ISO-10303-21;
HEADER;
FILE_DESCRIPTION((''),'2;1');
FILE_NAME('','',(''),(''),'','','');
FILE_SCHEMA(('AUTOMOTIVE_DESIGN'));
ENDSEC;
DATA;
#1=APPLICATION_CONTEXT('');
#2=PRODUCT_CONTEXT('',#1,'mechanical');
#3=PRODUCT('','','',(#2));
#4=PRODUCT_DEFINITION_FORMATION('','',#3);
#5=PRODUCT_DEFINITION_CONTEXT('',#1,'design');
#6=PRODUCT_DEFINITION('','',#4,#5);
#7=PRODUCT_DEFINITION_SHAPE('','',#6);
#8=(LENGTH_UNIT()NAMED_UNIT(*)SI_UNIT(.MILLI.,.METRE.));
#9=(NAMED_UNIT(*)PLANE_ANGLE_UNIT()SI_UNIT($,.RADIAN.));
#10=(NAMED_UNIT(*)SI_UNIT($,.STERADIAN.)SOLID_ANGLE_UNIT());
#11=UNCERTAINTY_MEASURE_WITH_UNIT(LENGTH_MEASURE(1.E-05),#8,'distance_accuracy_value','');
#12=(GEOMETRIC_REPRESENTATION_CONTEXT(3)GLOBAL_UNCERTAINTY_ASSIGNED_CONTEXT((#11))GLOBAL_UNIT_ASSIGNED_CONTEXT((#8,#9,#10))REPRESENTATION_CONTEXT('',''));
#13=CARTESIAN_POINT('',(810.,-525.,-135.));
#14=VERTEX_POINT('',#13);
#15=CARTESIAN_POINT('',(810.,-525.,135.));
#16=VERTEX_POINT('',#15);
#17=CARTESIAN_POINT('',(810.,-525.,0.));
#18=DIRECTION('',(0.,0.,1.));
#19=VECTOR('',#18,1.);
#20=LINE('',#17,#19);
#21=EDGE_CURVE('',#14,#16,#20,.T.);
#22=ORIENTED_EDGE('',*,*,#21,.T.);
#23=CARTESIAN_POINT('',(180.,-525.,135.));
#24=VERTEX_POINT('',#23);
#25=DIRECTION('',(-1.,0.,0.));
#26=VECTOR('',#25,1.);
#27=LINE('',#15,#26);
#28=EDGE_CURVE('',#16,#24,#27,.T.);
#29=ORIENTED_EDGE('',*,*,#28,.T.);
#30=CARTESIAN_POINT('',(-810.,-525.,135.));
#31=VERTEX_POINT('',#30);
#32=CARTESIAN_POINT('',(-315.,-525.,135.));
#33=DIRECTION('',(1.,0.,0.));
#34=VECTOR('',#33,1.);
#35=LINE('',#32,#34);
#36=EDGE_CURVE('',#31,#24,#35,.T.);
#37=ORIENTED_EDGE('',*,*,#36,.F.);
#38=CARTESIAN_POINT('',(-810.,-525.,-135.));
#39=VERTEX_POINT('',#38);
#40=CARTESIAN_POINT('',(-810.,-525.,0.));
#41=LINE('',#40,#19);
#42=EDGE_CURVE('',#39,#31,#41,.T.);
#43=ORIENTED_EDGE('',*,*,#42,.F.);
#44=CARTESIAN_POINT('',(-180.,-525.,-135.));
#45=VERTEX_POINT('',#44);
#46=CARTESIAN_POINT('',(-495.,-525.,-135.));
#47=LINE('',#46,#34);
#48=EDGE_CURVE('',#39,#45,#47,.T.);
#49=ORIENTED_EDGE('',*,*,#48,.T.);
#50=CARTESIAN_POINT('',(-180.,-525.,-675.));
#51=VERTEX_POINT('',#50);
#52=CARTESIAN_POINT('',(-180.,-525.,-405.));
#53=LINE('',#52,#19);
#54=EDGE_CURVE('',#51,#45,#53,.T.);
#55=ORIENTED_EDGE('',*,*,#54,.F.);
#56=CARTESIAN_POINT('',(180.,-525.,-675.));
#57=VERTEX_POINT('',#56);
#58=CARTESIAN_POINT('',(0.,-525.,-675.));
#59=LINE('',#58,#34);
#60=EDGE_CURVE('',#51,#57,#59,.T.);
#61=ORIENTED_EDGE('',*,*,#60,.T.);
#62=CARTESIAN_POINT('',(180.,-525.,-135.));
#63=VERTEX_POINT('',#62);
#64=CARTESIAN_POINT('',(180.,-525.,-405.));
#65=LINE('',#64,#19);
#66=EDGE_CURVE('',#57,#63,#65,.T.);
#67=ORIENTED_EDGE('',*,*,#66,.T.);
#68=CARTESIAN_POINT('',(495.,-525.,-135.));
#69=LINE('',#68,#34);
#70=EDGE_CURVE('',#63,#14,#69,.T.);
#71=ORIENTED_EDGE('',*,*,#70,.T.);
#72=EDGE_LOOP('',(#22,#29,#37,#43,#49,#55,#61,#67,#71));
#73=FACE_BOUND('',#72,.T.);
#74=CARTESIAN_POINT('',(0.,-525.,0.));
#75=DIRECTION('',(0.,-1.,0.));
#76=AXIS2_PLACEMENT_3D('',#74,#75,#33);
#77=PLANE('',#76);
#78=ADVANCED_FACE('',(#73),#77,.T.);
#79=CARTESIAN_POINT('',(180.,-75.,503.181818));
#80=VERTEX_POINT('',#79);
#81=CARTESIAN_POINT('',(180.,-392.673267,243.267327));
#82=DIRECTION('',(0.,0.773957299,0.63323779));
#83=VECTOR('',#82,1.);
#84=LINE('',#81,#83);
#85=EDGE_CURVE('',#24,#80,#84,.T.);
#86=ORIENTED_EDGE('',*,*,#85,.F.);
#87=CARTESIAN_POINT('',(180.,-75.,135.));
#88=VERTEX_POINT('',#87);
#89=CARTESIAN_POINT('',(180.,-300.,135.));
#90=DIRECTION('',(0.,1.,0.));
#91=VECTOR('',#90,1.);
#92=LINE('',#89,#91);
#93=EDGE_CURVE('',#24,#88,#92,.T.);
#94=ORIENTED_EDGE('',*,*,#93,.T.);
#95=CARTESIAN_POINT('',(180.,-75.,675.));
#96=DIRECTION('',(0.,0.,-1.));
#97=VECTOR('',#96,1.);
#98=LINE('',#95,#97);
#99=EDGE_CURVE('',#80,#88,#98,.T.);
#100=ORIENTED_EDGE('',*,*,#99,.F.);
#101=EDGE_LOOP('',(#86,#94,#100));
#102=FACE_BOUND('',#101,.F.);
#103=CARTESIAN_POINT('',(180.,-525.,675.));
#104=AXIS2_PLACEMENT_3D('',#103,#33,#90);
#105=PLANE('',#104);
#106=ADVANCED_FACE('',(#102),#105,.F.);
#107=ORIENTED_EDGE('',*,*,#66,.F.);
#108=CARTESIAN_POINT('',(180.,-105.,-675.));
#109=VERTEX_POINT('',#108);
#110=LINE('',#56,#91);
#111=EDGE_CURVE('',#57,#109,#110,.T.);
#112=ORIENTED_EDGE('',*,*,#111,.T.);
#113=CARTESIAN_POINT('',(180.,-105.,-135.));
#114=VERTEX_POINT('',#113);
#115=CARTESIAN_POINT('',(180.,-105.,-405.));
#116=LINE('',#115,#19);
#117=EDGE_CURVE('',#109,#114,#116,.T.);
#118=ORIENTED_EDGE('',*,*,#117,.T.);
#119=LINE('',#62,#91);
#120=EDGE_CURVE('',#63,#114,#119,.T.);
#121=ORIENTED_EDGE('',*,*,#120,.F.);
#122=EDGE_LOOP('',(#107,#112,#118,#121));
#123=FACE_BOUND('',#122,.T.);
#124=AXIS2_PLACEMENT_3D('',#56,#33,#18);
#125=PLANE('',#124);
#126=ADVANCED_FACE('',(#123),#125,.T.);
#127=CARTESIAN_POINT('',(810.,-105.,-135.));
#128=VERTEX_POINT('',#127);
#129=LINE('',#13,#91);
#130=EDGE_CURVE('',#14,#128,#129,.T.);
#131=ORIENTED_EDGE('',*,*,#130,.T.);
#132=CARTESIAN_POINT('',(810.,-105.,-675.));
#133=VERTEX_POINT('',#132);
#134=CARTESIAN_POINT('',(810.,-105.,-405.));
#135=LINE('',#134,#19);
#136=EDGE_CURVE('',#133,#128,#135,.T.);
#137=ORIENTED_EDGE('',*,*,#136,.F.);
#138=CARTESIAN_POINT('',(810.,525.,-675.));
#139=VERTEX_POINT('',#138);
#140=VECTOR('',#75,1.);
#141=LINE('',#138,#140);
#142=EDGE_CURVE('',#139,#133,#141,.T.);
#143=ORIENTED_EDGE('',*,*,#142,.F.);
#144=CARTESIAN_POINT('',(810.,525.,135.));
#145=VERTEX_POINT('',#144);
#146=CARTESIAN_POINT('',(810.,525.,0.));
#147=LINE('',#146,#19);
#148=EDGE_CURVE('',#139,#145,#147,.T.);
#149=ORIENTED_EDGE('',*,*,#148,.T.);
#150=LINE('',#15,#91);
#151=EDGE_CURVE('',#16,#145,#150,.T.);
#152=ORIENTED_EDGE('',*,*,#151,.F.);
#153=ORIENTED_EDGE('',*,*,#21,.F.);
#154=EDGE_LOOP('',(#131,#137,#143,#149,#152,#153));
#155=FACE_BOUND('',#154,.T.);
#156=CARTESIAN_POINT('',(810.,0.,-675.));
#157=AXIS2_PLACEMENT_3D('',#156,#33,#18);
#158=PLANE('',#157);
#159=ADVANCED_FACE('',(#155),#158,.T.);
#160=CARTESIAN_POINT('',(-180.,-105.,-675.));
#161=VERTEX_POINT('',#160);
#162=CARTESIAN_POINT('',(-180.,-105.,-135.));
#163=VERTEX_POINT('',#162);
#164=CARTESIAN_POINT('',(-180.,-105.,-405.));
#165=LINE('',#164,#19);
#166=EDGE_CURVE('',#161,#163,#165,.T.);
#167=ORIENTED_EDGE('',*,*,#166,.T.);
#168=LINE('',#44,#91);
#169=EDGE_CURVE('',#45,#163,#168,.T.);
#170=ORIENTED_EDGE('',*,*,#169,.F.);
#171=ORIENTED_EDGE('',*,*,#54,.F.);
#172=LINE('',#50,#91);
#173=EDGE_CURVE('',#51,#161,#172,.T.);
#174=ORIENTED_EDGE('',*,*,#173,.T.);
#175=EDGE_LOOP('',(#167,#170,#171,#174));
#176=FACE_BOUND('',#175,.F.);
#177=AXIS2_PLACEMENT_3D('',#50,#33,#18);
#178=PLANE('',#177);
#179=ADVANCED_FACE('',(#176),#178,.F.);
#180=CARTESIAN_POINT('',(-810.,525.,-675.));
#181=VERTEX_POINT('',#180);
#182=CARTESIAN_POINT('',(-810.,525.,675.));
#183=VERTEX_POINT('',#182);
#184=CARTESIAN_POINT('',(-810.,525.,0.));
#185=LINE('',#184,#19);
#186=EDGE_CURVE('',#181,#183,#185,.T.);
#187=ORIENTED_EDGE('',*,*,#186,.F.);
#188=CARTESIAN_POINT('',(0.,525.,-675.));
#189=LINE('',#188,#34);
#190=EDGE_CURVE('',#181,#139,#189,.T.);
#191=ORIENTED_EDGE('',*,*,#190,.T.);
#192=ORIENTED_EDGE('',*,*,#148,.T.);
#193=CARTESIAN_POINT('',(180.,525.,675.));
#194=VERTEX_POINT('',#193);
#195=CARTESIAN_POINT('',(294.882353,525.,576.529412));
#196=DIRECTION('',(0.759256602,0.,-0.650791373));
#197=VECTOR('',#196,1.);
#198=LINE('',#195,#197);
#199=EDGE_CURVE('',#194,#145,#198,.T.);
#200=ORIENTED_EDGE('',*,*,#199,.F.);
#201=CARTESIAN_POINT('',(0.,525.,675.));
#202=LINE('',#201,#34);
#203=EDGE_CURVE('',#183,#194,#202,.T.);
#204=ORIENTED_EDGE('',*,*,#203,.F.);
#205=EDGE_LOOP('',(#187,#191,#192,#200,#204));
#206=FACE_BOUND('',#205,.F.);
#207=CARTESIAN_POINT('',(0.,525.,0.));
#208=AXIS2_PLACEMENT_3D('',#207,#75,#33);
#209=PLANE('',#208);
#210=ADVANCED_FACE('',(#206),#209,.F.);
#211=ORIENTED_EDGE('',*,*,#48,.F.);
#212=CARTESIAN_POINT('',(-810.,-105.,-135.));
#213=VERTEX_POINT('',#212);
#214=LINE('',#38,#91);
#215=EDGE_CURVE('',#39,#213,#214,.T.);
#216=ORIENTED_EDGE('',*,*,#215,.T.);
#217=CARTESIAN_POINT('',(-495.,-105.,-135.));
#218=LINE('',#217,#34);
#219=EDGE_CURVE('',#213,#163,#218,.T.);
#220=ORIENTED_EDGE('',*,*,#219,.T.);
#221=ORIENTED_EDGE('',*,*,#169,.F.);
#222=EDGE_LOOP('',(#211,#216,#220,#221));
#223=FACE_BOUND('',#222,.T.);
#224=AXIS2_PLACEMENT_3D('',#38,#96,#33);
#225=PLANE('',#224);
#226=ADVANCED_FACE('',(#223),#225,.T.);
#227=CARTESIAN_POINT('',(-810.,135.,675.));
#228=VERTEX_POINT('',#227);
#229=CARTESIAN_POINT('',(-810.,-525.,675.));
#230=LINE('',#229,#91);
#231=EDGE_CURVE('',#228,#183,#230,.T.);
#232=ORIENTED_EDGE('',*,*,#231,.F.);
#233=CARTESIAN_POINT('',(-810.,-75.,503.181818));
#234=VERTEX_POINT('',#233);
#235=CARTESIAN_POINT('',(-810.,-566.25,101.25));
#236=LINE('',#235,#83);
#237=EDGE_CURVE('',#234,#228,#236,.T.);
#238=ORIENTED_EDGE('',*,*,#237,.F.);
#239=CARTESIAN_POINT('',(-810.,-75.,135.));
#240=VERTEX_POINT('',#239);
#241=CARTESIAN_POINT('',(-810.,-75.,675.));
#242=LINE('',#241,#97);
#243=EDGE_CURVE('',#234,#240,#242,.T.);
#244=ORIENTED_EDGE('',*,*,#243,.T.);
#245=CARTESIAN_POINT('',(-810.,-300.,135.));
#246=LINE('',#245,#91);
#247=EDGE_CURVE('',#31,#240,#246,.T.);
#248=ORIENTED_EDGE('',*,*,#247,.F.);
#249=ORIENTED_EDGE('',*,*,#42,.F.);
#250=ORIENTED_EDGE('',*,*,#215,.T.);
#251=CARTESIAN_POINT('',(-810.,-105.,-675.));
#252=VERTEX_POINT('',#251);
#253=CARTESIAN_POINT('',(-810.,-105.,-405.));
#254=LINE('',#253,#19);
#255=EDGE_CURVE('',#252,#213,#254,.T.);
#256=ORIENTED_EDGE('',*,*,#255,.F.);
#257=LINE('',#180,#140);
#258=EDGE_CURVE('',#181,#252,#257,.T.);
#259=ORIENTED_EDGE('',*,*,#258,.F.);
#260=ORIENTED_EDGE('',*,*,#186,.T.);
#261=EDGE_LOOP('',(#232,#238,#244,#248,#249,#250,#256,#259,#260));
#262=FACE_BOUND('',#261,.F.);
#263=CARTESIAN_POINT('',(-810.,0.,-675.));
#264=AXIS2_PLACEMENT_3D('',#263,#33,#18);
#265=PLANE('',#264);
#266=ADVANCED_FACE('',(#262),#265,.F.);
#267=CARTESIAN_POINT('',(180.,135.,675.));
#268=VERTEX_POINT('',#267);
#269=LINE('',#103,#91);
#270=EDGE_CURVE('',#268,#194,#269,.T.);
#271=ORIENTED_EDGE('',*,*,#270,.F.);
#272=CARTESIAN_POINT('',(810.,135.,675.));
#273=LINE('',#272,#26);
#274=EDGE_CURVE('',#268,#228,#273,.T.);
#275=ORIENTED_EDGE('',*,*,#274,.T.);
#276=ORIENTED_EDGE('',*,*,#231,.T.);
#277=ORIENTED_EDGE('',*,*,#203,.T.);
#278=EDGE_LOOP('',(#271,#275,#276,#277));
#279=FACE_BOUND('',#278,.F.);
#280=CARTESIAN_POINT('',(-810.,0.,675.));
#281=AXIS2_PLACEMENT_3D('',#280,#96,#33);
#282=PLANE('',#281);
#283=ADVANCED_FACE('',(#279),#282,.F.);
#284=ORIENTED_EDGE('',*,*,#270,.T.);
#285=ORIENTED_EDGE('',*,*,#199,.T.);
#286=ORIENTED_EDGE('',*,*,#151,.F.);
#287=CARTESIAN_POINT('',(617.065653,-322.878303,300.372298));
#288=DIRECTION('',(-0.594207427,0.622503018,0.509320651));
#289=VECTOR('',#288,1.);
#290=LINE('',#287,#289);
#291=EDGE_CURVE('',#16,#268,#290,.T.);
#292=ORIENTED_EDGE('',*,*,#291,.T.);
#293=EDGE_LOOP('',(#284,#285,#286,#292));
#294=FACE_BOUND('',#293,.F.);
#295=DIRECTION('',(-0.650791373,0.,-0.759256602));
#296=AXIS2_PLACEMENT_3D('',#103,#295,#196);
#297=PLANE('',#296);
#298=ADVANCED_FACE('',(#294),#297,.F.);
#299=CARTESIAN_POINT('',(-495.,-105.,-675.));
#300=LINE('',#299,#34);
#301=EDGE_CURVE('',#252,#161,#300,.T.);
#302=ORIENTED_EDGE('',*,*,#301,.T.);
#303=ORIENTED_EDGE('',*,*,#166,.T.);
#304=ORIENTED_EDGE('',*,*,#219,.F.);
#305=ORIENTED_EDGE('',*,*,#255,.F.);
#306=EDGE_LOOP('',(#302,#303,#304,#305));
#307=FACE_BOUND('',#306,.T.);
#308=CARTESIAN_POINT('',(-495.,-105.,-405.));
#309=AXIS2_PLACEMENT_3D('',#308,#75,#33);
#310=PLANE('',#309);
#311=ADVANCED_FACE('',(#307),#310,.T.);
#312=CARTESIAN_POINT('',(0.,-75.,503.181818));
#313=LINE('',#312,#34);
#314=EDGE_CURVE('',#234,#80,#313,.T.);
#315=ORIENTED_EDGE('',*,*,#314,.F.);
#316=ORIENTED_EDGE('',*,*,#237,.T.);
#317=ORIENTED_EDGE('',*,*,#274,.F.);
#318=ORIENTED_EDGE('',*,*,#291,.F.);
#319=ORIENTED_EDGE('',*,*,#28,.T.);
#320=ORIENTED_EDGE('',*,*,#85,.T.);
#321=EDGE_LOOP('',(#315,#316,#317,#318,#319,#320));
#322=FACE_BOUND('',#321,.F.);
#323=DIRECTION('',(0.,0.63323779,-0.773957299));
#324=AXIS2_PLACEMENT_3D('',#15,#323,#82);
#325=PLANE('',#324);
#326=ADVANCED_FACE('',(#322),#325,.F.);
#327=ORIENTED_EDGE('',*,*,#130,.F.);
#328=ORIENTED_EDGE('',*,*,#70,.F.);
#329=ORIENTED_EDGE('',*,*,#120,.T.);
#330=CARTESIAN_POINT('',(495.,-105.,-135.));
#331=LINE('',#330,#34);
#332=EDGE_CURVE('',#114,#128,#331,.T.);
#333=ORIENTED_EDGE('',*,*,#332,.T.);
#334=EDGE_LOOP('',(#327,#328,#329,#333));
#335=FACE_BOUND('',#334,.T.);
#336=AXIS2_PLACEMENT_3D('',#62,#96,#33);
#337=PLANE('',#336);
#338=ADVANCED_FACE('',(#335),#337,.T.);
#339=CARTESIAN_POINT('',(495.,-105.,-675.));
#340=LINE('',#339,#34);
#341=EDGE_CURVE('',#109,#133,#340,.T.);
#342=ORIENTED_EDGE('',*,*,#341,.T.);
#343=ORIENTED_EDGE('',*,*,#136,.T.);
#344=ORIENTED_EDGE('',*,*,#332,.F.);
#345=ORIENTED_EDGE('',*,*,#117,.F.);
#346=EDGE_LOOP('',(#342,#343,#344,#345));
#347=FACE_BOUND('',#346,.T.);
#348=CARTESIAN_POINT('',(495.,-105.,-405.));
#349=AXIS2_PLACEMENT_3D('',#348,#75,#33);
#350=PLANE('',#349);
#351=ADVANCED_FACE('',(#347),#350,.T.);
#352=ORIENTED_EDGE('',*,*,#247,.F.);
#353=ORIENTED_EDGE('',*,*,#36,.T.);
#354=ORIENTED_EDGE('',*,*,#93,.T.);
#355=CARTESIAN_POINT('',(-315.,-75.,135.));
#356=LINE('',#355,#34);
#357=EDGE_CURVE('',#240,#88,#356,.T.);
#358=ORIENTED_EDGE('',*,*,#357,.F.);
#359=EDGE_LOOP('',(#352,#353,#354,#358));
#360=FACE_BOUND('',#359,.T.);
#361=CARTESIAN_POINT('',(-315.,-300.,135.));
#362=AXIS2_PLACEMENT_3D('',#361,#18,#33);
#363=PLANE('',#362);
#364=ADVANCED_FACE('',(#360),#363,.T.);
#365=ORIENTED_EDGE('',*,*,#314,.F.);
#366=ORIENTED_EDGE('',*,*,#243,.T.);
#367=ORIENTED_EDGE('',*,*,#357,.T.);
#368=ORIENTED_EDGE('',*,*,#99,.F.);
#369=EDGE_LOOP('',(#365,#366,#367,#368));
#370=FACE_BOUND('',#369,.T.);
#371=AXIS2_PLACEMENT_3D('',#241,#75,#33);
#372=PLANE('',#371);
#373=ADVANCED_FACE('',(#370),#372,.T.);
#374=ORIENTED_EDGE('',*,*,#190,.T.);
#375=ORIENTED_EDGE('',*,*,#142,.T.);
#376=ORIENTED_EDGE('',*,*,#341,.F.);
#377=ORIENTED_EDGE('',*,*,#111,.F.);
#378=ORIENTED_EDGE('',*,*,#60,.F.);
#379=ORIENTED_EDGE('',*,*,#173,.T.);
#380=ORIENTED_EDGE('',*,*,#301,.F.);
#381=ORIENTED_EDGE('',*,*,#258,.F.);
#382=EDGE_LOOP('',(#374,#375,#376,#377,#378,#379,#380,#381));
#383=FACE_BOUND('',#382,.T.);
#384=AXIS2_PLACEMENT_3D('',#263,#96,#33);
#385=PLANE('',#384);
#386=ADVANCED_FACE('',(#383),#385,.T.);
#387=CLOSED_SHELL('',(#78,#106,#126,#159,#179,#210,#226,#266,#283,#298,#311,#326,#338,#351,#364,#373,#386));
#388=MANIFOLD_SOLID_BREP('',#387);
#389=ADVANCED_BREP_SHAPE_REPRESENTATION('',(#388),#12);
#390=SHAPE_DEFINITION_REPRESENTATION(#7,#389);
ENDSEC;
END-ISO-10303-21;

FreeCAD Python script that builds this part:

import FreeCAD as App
import Part
import Sketcher
from FreeCAD import Vector
Q = App.Units.Quantity

doc = App.newDocument("Part")
body = doc.addObject("PartDesign::Body", "Body")

# Sketch on XZ plane
sketch1 = body.newObject("Sketcher::SketchObject", "Sketch")
sketch1.AttachmentSupport = (doc.getObject("XZ_Plane"), [""])
sketch1.MapMode = "FlatFace"
sketch1.addGeometry(Part.LineSegment(Vector(-810, 675, 0), Vector(-810, -675, 0)), False)
sketch1.addGeometry(Part.LineSegment(Vector(-810, -675, 0), Vector(810, -675, 0)), False)
sketch1.addGeometry(Part.LineSegment(Vector(810, -675, 0), Vector(810, 675, 0)), False)
sketch1.addGeometry(Part.LineSegment(Vector(810, 675, 0), Vector(-810, 675, 0)), False)
sketch1.addConstraint(Sketcher.Constraint("Coincident", 0, 2, 1, 1))
sketch1.addConstraint(Sketcher.Constraint("Coincident", 1, 2, 2, 1))
sketch1.addConstraint(Sketcher.Constraint("Coincident", 2, 2, 3, 1))
sketch1.addConstraint(Sketcher.Constraint("Coincident", 3, 2, 0, 1))
sketch1.addConstraint(Sketcher.Constraint("Vertical", 0))
sketch1.addConstraint(Sketcher.Constraint("Horizontal", 1))
sketch1.addConstraint(Sketcher.Constraint("Vertical", 2))
sketch1.addConstraint(Sketcher.Constraint("Horizontal", 3))
sketch1.addConstraint(Sketcher.Constraint("Symmetric", 0, 2, 2, 2, -1, 1))
sketch1.addConstraint(Sketcher.Constraint("DistanceX", 1, 1, 1, 2, Q("1620 mm")))
sketch1.addConstraint(Sketcher.Constraint("DistanceY", 0, 2, 0, 1, Q("1350 mm")))
pad1 = body.newObject("PartDesign::Pad", "Pad")
pad1.Profile = sketch1
pad1.Length = 1050
pad1.Midplane = True

# Sketch on XZ plane
sketch2 = body.newObject("Sketcher::SketchObject", "Sketch001")
sketch2.AttachmentSupport = (doc.getObject("XZ_Plane"), [""])
sketch2.MapMode = "FlatFace"
sketch2.AttachmentOffset = App.Placement(Vector(0, 0, 525), App.Rotation())
sketch2.addGeometry(Part.LineSegment(Vector(-810, -135, 0), Vector(-810, -675, 0)), False)
sketch2.addGeometry(Part.LineSegment(Vector(-810, -675, 0), Vector(-180, -675, 0)), False)
sketch2.addGeometry(Part.LineSegment(Vector(-180, -675, 0), Vector(-180, -135, 0)), False)
sketch2.addGeometry(Part.LineSegment(Vector(-180, -135, 0), Vector(-810, -135, 0)), False)
sketch2.addGeometry(Part.LineSegment(Vector(180, -135, 0), Vector(180, -675, 0)), False)
sketch2.addGeometry(Part.LineSegment(Vector(180, -675, 0), Vector(810, -675, 0)), False)
sketch2.addGeometry(Part.LineSegment(Vector(810, -675, 0), Vector(810, -135, 0)), False)
sketch2.addGeometry(Part.LineSegment(Vector(810, -135, 0), Vector(180, -135, 0)), False)
sketch2.addConstraint(Sketcher.Constraint("Coincident", 0, 2, 1, 1))
sketch2.addConstraint(Sketcher.Constraint("Coincident", 1, 2, 2, 1))
sketch2.addConstraint(Sketcher.Constraint("Coincident", 2, 2, 3, 1))
sketch2.addConstraint(Sketcher.Constraint("Coincident", 3, 2, 0, 1))
sketch2.addConstraint(Sketcher.Constraint("Coincident", 4, 2, 5, 1))
sketch2.addConstraint(Sketcher.Constraint("Coincident", 5, 2, 6, 1))
sketch2.addConstraint(Sketcher.Constraint("Coincident", 6, 2, 7, 1))
sketch2.addConstraint(Sketcher.Constraint("Coincident", 7, 2, 4, 1))
sketch2.addConstraint(Sketcher.Constraint("Vertical", 0))
sketch2.addConstraint(Sketcher.Constraint("Horizontal", 1))
sketch2.addConstraint(Sketcher.Constraint("Vertical", 2))
sketch2.addConstraint(Sketcher.Constraint("Horizontal", 3))
sketch2.addConstraint(Sketcher.Constraint("Vertical", 4))
sketch2.addConstraint(Sketcher.Constraint("Horizontal", 5))
sketch2.addConstraint(Sketcher.Constraint("Vertical", 6))
sketch2.addConstraint(Sketcher.Constraint("Horizontal", 7))
sketch2.addConstraint(Sketcher.Constraint("Symmetric", 1, 2, 4, 2, -2))
sketch2.addConstraint(Sketcher.Constraint("Symmetric", 3, 2, 6, 2, -2))
sketch2.addConstraint(Sketcher.Constraint("DistanceX", 1, 1, 1, 2, Q("630 mm")))
sketch2.addConstraint(Sketcher.Constraint("DistanceY", 0, 2, 0, 1, Q("540 mm")))
sketch2.addConstraint(Sketcher.Constraint("DistanceX", 0, 2, -1, 1, Q("810 mm")))
sketch2.addConstraint(Sketcher.Constraint("DistanceY", 0, 2, -1, 1, Q("675 mm")))
pocket1 = body.newObject("PartDesign::Pocket", "Pocket")
pocket1.Profile = sketch2
pocket1.Length = 420

# Sketch on XY plane
sketch3 = body.newObject("Sketcher::SketchObject", "Sketch002")
sketch3.AttachmentSupport = (doc.getObject("XY_Plane"), [""])
sketch3.MapMode = "FlatFace"
sketch3.AttachmentOffset = App.Placement(Vector(0, 0, 675), App.Rotation())
sketch3.addGeometry(Part.LineSegment(Vector(-810, -75, 0), Vector(-810, -525, 0)), False)
sketch3.addGeometry(Part.LineSegment(Vector(-810, -525, 0), Vector(180, -525, 0)), False)
sketch3.addGeometry(Part.LineSegment(Vector(180, -525, 0), Vector(180, -75, 0)), False)
sketch3.addGeometry(Part.LineSegment(Vector(180, -75, 0), Vector(-810, -75, 0)), False)
sketch3.addConstraint(Sketcher.Constraint("Coincident", 0, 2, 1, 1))
sketch3.addConstraint(Sketcher.Constraint("Coincident", 1, 2, 2, 1))
sketch3.addConstraint(Sketcher.Constraint("Coincident", 2, 2, 3, 1))
sketch3.addConstraint(Sketcher.Constraint("Coincident", 3, 2, 0, 1))
sketch3.addConstraint(Sketcher.Constraint("Vertical", 0))
sketch3.addConstraint(Sketcher.Constraint("Horizontal", 1))
sketch3.addConstraint(Sketcher.Constraint("Vertical", 2))
sketch3.addConstraint(Sketcher.Constraint("Horizontal", 3))
sketch3.addConstraint(Sketcher.Constraint("DistanceX", 1, 1, 1, 2, Q("990 mm")))
sketch3.addConstraint(Sketcher.Constraint("DistanceY", 0, 2, 0, 1, Q("450 mm")))
sketch3.addConstraint(Sketcher.Constraint("DistanceX", 0, 2, -1, 1, Q("810 mm")))
sketch3.addConstraint(Sketcher.Constraint("DistanceY", 0, 2, -1, 1, Q("525 mm")))
pocket2 = body.newObject("PartDesign::Pocket", "Pocket001")
pocket2.Profile = sketch3
pocket2.Length = 540

# Sketch on YZ plane
sketch4 = body.newObject("Sketcher::SketchObject", "Sketch003")
sketch4.AttachmentSupport = (doc.getObject("YZ_Plane"), [""])
sketch4.MapMode = "FlatFace"
sketch4.AttachmentOffset = App.Placement(Vector(0, 0, 810), App.Rotation())
sketch4.addGeometry(Part.LineSegment(Vector(135, 675, 0), Vector(-525, 675, 0)), False)
sketch4.addGeometry(Part.LineSegment(Vector(-525, 675, 0), Vector(-525, 135, 0)), False)
sketch4.addGeometry(Part.LineSegment(Vector(-525, 135, 0), Vector(135, 675, 0)), False)
sketch4.addConstraint(Sketcher.Constraint("Coincident", 0, 2, 1, 1))
sketch4.addConstraint(Sketcher.Constraint("Coincident", 1, 2, 2, 1))
sketch4.addConstraint(Sketcher.Constraint("Coincident", 2, 2, 0, 1))
sketch4.addConstraint(Sketcher.Constraint("Horizontal", 0))
sketch4.addConstraint(Sketcher.Constraint("Vertical", 1))
sketch4.addConstraint(Sketcher.Constraint("DistanceX", 0, 2, 0, 1, Q("660 mm")))
sketch4.addConstraint(Sketcher.Constraint("DistanceY", 1, 2, 1, 1, Q("540 mm")))
sketch4.addConstraint(Sketcher.Constraint("DistanceX", 0, 2, -1, 1, Q("525 mm")))
sketch4.addConstraint(Sketcher.Constraint("DistanceY", -1, 1, 0, 2, Q("675 mm")))
pocket3 = body.newObject("PartDesign::Pocket", "Pocket002")
pocket3.Profile = sketch4
pocket3.Type = "ThroughAll"

# Sketch on XZ plane
sketch5 = body.newObject("Sketcher::SketchObject", "Sketch004")
sketch5.AttachmentSupport = (doc.getObject("XZ_Plane"), [""])
sketch5.MapMode = "FlatFace"
sketch5.AttachmentOffset = App.Placement(Vector(0, 0, 525), App.Rotation())
sketch5.addGeometry(Part.LineSegment(Vector(180, 675, 0), Vector(810, 135, 0)), False)
sketch5.addGeometry(Part.LineSegment(Vector(810, 135, 0), Vector(810, 675, 0)), False)
sketch5.addGeometry(Part.LineSegment(Vector(810, 675, 0), Vector(180, 675, 0)), False)
sketch5.addConstraint(Sketcher.Constraint("Coincident", 0, 2, 1, 1))
sketch5.addConstraint(Sketcher.Constraint("Coincident", 1, 2, 2, 1))
sketch5.addConstraint(Sketcher.Constraint("Coincident", 2, 2, 0, 1))
sketch5.addConstraint(Sketcher.Constraint("Vertical", 1))
sketch5.addConstraint(Sketcher.Constraint("Horizontal", 2))
sketch5.addConstraint(Sketcher.Constraint("DistanceX", 2, 2, 2, 1, Q("630 mm")))
sketch5.addConstraint(Sketcher.Constraint("DistanceY", 1, 1, 1, 2, Q("540 mm")))
sketch5.addConstraint(Sketcher.Constraint("DistanceX", -1, 1, 0, 2, Q("810 mm")))
sketch5.addConstraint(Sketcher.Constraint("DistanceY", -1, 1, 0, 2, Q("135 mm")))
pocket4 = body.newObject("PartDesign::Pocket", "Pocket003")
pocket4.Profile = sketch5
pocket4.Type = "ThroughAll"

doc.recompute()
